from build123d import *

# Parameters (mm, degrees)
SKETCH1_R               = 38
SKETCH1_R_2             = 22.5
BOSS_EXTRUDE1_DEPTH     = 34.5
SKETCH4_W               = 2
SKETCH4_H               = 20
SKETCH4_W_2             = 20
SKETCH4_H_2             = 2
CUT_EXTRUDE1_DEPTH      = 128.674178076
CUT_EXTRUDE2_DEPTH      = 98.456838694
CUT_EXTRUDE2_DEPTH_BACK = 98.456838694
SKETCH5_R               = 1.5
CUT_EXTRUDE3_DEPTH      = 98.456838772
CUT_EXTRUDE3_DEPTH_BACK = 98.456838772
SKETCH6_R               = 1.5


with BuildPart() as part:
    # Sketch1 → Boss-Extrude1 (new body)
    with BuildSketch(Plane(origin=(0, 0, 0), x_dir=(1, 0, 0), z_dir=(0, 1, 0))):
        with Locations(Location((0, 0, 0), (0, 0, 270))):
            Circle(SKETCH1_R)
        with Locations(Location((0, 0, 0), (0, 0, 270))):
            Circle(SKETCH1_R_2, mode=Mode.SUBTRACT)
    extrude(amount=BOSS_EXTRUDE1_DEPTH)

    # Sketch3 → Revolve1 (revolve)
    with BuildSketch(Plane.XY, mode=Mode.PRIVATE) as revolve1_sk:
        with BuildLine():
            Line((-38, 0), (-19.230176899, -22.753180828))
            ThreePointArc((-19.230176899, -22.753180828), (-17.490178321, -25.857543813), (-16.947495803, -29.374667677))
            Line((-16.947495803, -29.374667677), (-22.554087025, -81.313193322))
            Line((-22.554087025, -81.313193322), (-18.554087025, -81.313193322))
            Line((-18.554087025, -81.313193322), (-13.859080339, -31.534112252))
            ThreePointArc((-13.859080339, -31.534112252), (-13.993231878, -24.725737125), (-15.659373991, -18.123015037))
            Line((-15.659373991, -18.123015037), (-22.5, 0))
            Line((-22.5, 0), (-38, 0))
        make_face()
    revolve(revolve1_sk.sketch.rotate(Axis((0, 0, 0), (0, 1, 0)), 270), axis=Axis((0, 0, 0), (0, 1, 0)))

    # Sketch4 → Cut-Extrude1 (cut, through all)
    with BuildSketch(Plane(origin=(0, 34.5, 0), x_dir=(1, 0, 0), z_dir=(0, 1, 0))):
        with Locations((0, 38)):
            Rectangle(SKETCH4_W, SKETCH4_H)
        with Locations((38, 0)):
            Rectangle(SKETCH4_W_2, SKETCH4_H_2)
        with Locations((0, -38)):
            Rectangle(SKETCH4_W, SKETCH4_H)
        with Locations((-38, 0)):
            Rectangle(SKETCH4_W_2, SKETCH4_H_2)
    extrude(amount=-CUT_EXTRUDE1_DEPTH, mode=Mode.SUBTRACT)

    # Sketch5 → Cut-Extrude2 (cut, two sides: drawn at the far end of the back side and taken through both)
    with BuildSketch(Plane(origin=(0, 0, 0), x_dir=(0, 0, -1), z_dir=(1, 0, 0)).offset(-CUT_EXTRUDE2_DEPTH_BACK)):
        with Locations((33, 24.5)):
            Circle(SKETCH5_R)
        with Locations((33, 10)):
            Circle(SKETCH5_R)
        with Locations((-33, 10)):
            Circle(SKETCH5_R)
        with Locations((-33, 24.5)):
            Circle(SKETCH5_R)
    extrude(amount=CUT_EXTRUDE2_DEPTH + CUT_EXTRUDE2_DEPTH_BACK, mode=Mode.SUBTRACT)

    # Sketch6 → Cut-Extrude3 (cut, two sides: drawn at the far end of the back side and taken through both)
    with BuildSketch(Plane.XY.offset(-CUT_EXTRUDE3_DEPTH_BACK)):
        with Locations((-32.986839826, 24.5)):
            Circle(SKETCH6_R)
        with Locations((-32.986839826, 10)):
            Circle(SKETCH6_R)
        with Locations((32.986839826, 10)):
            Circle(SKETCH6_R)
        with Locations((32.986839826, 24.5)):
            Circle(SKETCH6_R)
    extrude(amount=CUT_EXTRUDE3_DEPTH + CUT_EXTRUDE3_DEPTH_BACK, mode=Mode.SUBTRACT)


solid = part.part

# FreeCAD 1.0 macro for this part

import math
import FreeCAD as App
import Part
import Sketcher
from FreeCAD import Vector

doc = App.newDocument("Part")
body = doc.addObject("PartDesign::Body", "Body")

# Sketch on XZ plane
sketch1 = body.newObject("Sketcher::SketchObject", "Sketch")
sketch1.AttachmentSupport = (doc.getObject("XZ_Plane"), [""])
sketch1.MapMode = "FlatFace"
sketch1.addGeometry(Part.Circle(Vector(0, 0, 0), Vector(0, 0, 1), 38), False)
sketch1.addGeometry(Part.Circle(Vector(0, 0, 0), Vector(0, 0, 1), 22), False)
sketch1.addConstraint(Sketcher.Constraint("Coincident", 0, 3, -1, 1))
sketch1.addConstraint(Sketcher.Constraint("Coincident", 1, 3, -1, 1))
sketch1.addConstraint(Sketcher.Constraint("Diameter", 0, 76.0))
sketch1.addConstraint(Sketcher.Constraint("Diameter", 1, 45.0))
pad1 = body.newObject("PartDesign::Pad", "Pad")
pad1.Profile = sketch1
pad1.Length = 34.5
pad1.Reversed = True

# Sketch on XY plane
sketch2 = body.newObject("Sketcher::SketchObject", "Sketch001")
sketch2.AttachmentSupport = (doc.getObject("XY_Plane"), [""])
sketch2.MapMode = "FlatFace"
sketch2.addGeometry(Part.LineSegment(Vector(-38, 0, 0), Vector(-19.2, -22.8, 0)), False)
sketch2.addGeometry(Part.ArcOfCircle(Part.Circle(Vector(-26.9, -29.1, 0), Vector(0, 0, 1), 10), math.radians(-1), math.radians(40)), False)
sketch2.addGeometry(Part.LineSegment(Vector(-16.9, -29.4, 0), Vector(-22.6, -81.3, 0)), False)
sketch2.addGeometry(Part.LineSegment(Vector(-22.6, -81.3, 0), Vector(-18.6, -81.3, 0)), False)
sketch2.addGeometry(Part.LineSegment(Vector(-18.6, -81.3, 0), Vector(-13.9, -31.5, 0)), False)
sketch2.addGeometry(Part.ArcOfCircle(Part.Circle(Vector(-43.7, -28.7, 0), Vector(0, 0, 1), 30), math.radians(-5), math.radians(21)), False)
sketch2.addGeometry(Part.LineSegment(Vector(-15.7, -18.1, 0), Vector(-22.5, 0, 0)), False)
sketch2.addGeometry(Part.LineSegment(Vector(-22.5, 0, 0), Vector(-38, 0, 0)), False)
sketch2.addConstraint(Sketcher.Constraint("Tangent", 0, 2, 1, 2))
sketch2.addConstraint(Sketcher.Constraint("Coincident", 1, 1, 2, 1))
sketch2.addConstraint(Sketcher.Constraint("Coincident", 2, 2, 3, 1))
sketch2.addConstraint(Sketcher.Constraint("Coincident", 3, 2, 4, 1))
sketch2.addConstraint(Sketcher.Constraint("Tangent", 4, 2, 5, 1))
sketch2.addConstraint(Sketcher.Constraint("Tangent", 5, 2, 6, 1))
sketch2.addConstraint(Sketcher.Constraint("Coincident", 6, 2, 7, 1))
sketch2.addConstraint(Sketcher.Constraint("Coincident", 7, 2, 0, 1))
sketch2.addConstraint(Sketcher.Constraint("Horizontal", 3))
sketch2.addConstraint(Sketcher.Constraint("Horizontal", 7))
sketch2.addConstraint(Sketcher.Constraint("PointOnObject", 6, 2, -1))
sketch2.addConstraint(Sketcher.Constraint("Radius", 1, 10.0))
sketch2.addConstraint(Sketcher.Constraint("Radius", 5, 30.0))
sketch2.addConstraint(Sketcher.Constraint("DistanceX", 3, 1, 3, 2, 4.0))
sketch2.addConstraint(Sketcher.Constraint("Distance", 4, 50.0))
sketch2.addConstraint(Sketcher.Constraint("DistanceX", 7, 2, 7, 1, 15.5))
sketch2.addConstraint(Sketcher.Constraint("DistanceX", 7, 2, -1, 1, 38.0))
sketch2.addConstraint(Sketcher.Constraint("Distance", 0, 29.495991))
sketch2.addConstraint(Sketcher.Constraint("DistanceX", 5, 3, -1, 1, 43.726529))
sketch2.addConstraint(Sketcher.Constraint("DistanceY", 5, 3, -1, 1, 28.717108))
sketch2.addConstraint(Sketcher.Constraint("DistanceY", 0, 2, -1, 1, 22.753181))
sketch2.addConstraint(Sketcher.Constraint("DistanceX", 4, 2, -1, 1, 13.85908))
sketch2.addConstraint(Sketcher.Constraint("DistanceX", 0, 2, 1, 1, 2.282681))
revolution = body.newObject("PartDesign::Revolution", "Revolution")
revolution.Profile = sketch2
revolution.ReferenceAxis = (sketch2, ["V_Axis"])
revolution.Angle = 360

# Sketch on XZ plane
sketch3 = body.newObject("Sketcher::SketchObject", "Sketch002")
sketch3.AttachmentSupport = (doc.getObject("XZ_Plane"), [""])
sketch3.MapMode = "FlatFace"
sketch3.AttachmentOffset = App.Placement(Vector(0, 0, -34.5), App.Rotation())
sketch3.addGeometry(Part.LineSegment(Vector(-1, -48, 0), Vector(-1, -28, 0)), False)
sketch3.addGeometry(Part.LineSegment(Vector(-1, -28, 0), Vector(1, -28, 0)), False)
sketch3.addGeometry(Part.LineSegment(Vector(1, -28, 0), Vector(1, -48, 0)), False)
sketch3.addGeometry(Part.LineSegment(Vector(1, -48, 0), Vector(-1, -48, 0)), False)
sketch3.addGeometry(Part.LineSegment(Vector(28, -1, 0), Vector(28, 1, 0)), False)
sketch3.addGeometry(Part.LineSegment(Vector(28, 1, 0), Vector(48, 1, 0)), False)
sketch3.addGeometry(Part.LineSegment(Vector(48, 1, 0), Vector(48, -1, 0)), False)
sketch3.addGeometry(Part.LineSegment(Vector(48, -1, 0), Vector(28, -1, 0)), False)
sketch3.addGeometry(Part.LineSegment(Vector(-1, 28, 0), Vector(-1, 48, 0)), False)
sketch3.addGeometry(Part.LineSegment(Vector(-1, 48, 0), Vector(1, 48, 0)), False)
sketch3.addGeometry(Part.LineSegment(Vector(1, 48, 0), Vector(1, 28, 0)), False)
sketch3.addGeometry(Part.LineSegment(Vector(1, 28, 0), Vector(-1, 28, 0)), False)
sketch3.addGeometry(Part.LineSegment(Vector(-48, -1, 0), Vector(-48, 1, 0)), False)
sketch3.addGeometry(Part.LineSegment(Vector(-48, 1, 0), Vector(-28, 1, 0)), False)
sketch3.addGeometry(Part.LineSegment(Vector(-28, 1, 0), Vector(-28, -1, 0)), False)
sketch3.addGeometry(Part.LineSegment(Vector(-28, -1, 0), Vector(-48, -1, 0)), False)
sketch3.addConstraint(Sketcher.Constraint("Coincident", 0, 2, 1, 1))
sketch3.addConstraint(Sketcher.Constraint("Coincident", 1, 2, 2, 1))
sketch3.addConstraint(Sketcher.Constraint("Coincident", 2, 2, 3, 1))
sketch3.addConstraint(Sketcher.Constraint("Coincident", 3, 2, 0, 1))
sketch3.addConstraint(Sketcher.Constraint("Coincident", 4, 2, 5, 1))
sketch3.addConstraint(Sketcher.Constraint("Coincident", 5, 2, 6, 1))
sketch3.addConstraint(Sketcher.Constraint("Coincident", 6, 2, 7, 1))
sketch3.addConstraint(Sketcher.Constraint("Coincident", 7, 2, 4, 1))
sketch3.addConstraint(Sketcher.Constraint("Coincident", 8, 2, 9, 1))
sketch3.addConstraint(Sketcher.Constraint("Coincident", 9, 2, 10, 1))
sketch3.addConstraint(Sketcher.Constraint("Coincident", 10, 2, 11, 1))
sketch3.addConstraint(Sketcher.Constraint("Coincident", 11, 2, 8, 1))
sketch3.addConstraint(Sketcher.Constraint("Coincident", 12, 2, 13, 1))
sketch3.addConstraint(Sketcher.Constraint("Coincident", 13, 2, 14, 1))
sketch3.addConstraint(Sketcher.Constraint("Coincident", 14, 2, 15, 1))
sketch3.addConstraint(Sketcher.Constraint("Coincident", 15, 2, 12, 1))
sketch3.addConstraint(Sketcher.Constraint("Vertical", 0))
sketch3.addConstraint(Sketcher.Constraint("Horizontal", 1))
sketch3.addConstraint(Sketcher.Constraint("Vertical", 2))
sketch3.addConstraint(Sketcher.Constraint("Horizontal", 3))
sketch3.addConstraint(Sketcher.Constraint("Vertical", 4))
sketch3.addConstraint(Sketcher.Constraint("Horizontal", 5))
sketch3.addConstraint(Sketcher.Constraint("Vertical", 6))
sketch3.addConstraint(Sketcher.Constraint("Horizontal", 7))
sketch3.addConstraint(Sketcher.Constraint("Vertical", 8))
sketch3.addConstraint(Sketcher.Constraint("Horizontal", 9))
sketch3.addConstraint(Sketcher.Constraint("Vertical", 10))
sketch3.addConstraint(Sketcher.Constraint("Horizontal", 11))
sketch3.addConstraint(Sketcher.Constraint("Vertical", 12))
sketch3.addConstraint(Sketcher.Constraint("Horizontal", 13))
sketch3.addConstraint(Sketcher.Constraint("Vertical", 14))
sketch3.addConstraint(Sketcher.Constraint("Horizontal", 15))
sketch3.addConstraint(Sketcher.Constraint("Symmetric", 2, 2, 8, 2, -1, 1))
sketch3.addConstraint(Sketcher.Constraint("Symmetric", 0, 2, 10, 2, -1, 1))
sketch3.addConstraint(Sketcher.Constraint("Symmetric", 6, 2, 12, 2, -1, 1))
sketch3.addConstraint(Sketcher.Constraint("Symmetric", 4, 2, 14, 2, -1, 1))
sketch3.addConstraint(Sketcher.Constraint("Horizontal", 5, 2, 12, 2))
sketch3.addConstraint(Sketcher.Constraint("Vertical", 3, 2, 8, 2))
sketch3.addConstraint(Sketcher.Constraint("Equal", 15, 0))
sketch3.addConstraint(Sketcher.Constraint("Equal", 11, 4))
sketch3.addConstraint(Sketcher.Constraint("DistanceX", 1, 1, 1, 2, 2.0))
sketch3.addConstraint(Sketcher.Constraint("DistanceX", 5, 1, 5, 2, 20.0))
sketch3.addConstraint(Sketcher.Constraint("DistanceY", 0, 2, -1, 1, 28.0))
sketch3.addConstraint(Sketcher.Constraint("DistanceX", -1, 1, 4, 2, 28.0))
pocket1 = body.newObject("PartDesign::Pocket", "Pocket")
pocket1.Profile = sketch3
pocket1.Type = "ThroughAll"
pocket1.Reversed = True

# Sketch on YZ plane
sketch4 = body.newObject("Sketcher::SketchObject", "Sketch003")
sketch4.AttachmentSupport = (doc.getObject("YZ_Plane"), [""])
sketch4.MapMode = "FlatFace"
sketch4.addGeometry(Part.Circle(Vector(24.5, -33, 0), Vector(0, 0, 1), 1.5), False)
sketch4.addGeometry(Part.Circle(Vector(10, -33, 0), Vector(0, 0, 1), 1.5), False)
sketch4.addGeometry(Part.Circle(Vector(10, 33, 0), Vector(0, 0, 1), 1.5), False)
sketch4.addGeometry(Part.Circle(Vector(24.5, 33, 0), Vector(0, 0, 1), 1.5), False)
sketch4.addConstraint(Sketcher.Constraint("Equal", 0, 1))
sketch4.addConstraint(Sketcher.Constraint("Equal", 1, 2))
sketch4.addConstraint(Sketcher.Constraint("Equal", 2, 3))
sketch4.addConstraint(Sketcher.Constraint("Symmetric", 1, 3, 2, 3, -1))
sketch4.addConstraint(Sketcher.Constraint("Symmetric", 0, 3, 3, 3, -1))
sketch4.addConstraint(Sketcher.Constraint("Horizontal", 0, 3, 1, 3))
sketch4.addConstraint(Sketcher.Constraint("Diameter", 0, 3.0))
sketch4.addConstraint(Sketcher.Constraint("DistanceY", 0, 3, -1, 1, 33.0))
sketch4.addConstraint(Sketcher.Constraint("DistanceX", -1, 1, 1, 3, 10.0))
sketch4.addConstraint(Sketcher.Constraint("DistanceX", -1, 1, 0, 3, 24.5))
pocket2 = body.newObject("PartDesign::Pocket", "Pocket001")
pocket2.Profile = sketch4
pocket2.Type = "ThroughAll"
pocket2.Midplane = True

# Sketch on XY plane
sketch5 = body.newObject("Sketcher::SketchObject", "Sketch004")
sketch5.AttachmentSupport = (doc.getObject("XY_Plane"), [""])
sketch5.MapMode = "FlatFace"
sketch5.addGeometry(Part.Circle(Vector(-33, 24.5, 0), Vector(0, 0, 1), 1.5), False)
sketch5.addGeometry(Part.Circle(Vector(-33, 10, 0), Vector(0, 0, 1), 1.5), False)
sketch5.addGeometry(Part.Circle(Vector(33, 10, 0), Vector(0, 0, 1), 1.5), False)
sketch5.addGeometry(Part.Circle(Vector(33, 24.5, 0), Vector(0, 0, 1), 1.5), False)
sketch5.addConstraint(Sketcher.Constraint("Equal", 0, 1))
sketch5.addConstraint(Sketcher.Constraint("Equal", 1, 2))
sketch5.addConstraint(Sketcher.Constraint("Equal", 2, 3))
sketch5.addConstraint(Sketcher.Constraint("Symmetric", 1, 3, 2, 3, -2))
sketch5.addConstraint(Sketcher.Constraint("Symmetric", 0, 3, 3, 3, -2))
sketch5.addConstraint(Sketcher.Constraint("Vertical", 0, 3, 1, 3))
sketch5.addConstraint(Sketcher.Constraint("Diameter", 0, 3.0))
sketch5.addConstraint(Sketcher.Constraint("DistanceY", -1, 1, 1, 3, 10.0))
sketch5.addConstraint(Sketcher.Constraint("DistanceY", -1, 1, 0, 3, 24.5))
sketch5.addConstraint(Sketcher.Constraint("DistanceX", 0, 3, -1, 1, 32.98684))
pocket3 = body.newObject("PartDesign::Pocket", "Pocket002")
pocket3.Profile = sketch5
pocket3.Type = "ThroughAll"
pocket3.Midplane = True

doc.recompute()
